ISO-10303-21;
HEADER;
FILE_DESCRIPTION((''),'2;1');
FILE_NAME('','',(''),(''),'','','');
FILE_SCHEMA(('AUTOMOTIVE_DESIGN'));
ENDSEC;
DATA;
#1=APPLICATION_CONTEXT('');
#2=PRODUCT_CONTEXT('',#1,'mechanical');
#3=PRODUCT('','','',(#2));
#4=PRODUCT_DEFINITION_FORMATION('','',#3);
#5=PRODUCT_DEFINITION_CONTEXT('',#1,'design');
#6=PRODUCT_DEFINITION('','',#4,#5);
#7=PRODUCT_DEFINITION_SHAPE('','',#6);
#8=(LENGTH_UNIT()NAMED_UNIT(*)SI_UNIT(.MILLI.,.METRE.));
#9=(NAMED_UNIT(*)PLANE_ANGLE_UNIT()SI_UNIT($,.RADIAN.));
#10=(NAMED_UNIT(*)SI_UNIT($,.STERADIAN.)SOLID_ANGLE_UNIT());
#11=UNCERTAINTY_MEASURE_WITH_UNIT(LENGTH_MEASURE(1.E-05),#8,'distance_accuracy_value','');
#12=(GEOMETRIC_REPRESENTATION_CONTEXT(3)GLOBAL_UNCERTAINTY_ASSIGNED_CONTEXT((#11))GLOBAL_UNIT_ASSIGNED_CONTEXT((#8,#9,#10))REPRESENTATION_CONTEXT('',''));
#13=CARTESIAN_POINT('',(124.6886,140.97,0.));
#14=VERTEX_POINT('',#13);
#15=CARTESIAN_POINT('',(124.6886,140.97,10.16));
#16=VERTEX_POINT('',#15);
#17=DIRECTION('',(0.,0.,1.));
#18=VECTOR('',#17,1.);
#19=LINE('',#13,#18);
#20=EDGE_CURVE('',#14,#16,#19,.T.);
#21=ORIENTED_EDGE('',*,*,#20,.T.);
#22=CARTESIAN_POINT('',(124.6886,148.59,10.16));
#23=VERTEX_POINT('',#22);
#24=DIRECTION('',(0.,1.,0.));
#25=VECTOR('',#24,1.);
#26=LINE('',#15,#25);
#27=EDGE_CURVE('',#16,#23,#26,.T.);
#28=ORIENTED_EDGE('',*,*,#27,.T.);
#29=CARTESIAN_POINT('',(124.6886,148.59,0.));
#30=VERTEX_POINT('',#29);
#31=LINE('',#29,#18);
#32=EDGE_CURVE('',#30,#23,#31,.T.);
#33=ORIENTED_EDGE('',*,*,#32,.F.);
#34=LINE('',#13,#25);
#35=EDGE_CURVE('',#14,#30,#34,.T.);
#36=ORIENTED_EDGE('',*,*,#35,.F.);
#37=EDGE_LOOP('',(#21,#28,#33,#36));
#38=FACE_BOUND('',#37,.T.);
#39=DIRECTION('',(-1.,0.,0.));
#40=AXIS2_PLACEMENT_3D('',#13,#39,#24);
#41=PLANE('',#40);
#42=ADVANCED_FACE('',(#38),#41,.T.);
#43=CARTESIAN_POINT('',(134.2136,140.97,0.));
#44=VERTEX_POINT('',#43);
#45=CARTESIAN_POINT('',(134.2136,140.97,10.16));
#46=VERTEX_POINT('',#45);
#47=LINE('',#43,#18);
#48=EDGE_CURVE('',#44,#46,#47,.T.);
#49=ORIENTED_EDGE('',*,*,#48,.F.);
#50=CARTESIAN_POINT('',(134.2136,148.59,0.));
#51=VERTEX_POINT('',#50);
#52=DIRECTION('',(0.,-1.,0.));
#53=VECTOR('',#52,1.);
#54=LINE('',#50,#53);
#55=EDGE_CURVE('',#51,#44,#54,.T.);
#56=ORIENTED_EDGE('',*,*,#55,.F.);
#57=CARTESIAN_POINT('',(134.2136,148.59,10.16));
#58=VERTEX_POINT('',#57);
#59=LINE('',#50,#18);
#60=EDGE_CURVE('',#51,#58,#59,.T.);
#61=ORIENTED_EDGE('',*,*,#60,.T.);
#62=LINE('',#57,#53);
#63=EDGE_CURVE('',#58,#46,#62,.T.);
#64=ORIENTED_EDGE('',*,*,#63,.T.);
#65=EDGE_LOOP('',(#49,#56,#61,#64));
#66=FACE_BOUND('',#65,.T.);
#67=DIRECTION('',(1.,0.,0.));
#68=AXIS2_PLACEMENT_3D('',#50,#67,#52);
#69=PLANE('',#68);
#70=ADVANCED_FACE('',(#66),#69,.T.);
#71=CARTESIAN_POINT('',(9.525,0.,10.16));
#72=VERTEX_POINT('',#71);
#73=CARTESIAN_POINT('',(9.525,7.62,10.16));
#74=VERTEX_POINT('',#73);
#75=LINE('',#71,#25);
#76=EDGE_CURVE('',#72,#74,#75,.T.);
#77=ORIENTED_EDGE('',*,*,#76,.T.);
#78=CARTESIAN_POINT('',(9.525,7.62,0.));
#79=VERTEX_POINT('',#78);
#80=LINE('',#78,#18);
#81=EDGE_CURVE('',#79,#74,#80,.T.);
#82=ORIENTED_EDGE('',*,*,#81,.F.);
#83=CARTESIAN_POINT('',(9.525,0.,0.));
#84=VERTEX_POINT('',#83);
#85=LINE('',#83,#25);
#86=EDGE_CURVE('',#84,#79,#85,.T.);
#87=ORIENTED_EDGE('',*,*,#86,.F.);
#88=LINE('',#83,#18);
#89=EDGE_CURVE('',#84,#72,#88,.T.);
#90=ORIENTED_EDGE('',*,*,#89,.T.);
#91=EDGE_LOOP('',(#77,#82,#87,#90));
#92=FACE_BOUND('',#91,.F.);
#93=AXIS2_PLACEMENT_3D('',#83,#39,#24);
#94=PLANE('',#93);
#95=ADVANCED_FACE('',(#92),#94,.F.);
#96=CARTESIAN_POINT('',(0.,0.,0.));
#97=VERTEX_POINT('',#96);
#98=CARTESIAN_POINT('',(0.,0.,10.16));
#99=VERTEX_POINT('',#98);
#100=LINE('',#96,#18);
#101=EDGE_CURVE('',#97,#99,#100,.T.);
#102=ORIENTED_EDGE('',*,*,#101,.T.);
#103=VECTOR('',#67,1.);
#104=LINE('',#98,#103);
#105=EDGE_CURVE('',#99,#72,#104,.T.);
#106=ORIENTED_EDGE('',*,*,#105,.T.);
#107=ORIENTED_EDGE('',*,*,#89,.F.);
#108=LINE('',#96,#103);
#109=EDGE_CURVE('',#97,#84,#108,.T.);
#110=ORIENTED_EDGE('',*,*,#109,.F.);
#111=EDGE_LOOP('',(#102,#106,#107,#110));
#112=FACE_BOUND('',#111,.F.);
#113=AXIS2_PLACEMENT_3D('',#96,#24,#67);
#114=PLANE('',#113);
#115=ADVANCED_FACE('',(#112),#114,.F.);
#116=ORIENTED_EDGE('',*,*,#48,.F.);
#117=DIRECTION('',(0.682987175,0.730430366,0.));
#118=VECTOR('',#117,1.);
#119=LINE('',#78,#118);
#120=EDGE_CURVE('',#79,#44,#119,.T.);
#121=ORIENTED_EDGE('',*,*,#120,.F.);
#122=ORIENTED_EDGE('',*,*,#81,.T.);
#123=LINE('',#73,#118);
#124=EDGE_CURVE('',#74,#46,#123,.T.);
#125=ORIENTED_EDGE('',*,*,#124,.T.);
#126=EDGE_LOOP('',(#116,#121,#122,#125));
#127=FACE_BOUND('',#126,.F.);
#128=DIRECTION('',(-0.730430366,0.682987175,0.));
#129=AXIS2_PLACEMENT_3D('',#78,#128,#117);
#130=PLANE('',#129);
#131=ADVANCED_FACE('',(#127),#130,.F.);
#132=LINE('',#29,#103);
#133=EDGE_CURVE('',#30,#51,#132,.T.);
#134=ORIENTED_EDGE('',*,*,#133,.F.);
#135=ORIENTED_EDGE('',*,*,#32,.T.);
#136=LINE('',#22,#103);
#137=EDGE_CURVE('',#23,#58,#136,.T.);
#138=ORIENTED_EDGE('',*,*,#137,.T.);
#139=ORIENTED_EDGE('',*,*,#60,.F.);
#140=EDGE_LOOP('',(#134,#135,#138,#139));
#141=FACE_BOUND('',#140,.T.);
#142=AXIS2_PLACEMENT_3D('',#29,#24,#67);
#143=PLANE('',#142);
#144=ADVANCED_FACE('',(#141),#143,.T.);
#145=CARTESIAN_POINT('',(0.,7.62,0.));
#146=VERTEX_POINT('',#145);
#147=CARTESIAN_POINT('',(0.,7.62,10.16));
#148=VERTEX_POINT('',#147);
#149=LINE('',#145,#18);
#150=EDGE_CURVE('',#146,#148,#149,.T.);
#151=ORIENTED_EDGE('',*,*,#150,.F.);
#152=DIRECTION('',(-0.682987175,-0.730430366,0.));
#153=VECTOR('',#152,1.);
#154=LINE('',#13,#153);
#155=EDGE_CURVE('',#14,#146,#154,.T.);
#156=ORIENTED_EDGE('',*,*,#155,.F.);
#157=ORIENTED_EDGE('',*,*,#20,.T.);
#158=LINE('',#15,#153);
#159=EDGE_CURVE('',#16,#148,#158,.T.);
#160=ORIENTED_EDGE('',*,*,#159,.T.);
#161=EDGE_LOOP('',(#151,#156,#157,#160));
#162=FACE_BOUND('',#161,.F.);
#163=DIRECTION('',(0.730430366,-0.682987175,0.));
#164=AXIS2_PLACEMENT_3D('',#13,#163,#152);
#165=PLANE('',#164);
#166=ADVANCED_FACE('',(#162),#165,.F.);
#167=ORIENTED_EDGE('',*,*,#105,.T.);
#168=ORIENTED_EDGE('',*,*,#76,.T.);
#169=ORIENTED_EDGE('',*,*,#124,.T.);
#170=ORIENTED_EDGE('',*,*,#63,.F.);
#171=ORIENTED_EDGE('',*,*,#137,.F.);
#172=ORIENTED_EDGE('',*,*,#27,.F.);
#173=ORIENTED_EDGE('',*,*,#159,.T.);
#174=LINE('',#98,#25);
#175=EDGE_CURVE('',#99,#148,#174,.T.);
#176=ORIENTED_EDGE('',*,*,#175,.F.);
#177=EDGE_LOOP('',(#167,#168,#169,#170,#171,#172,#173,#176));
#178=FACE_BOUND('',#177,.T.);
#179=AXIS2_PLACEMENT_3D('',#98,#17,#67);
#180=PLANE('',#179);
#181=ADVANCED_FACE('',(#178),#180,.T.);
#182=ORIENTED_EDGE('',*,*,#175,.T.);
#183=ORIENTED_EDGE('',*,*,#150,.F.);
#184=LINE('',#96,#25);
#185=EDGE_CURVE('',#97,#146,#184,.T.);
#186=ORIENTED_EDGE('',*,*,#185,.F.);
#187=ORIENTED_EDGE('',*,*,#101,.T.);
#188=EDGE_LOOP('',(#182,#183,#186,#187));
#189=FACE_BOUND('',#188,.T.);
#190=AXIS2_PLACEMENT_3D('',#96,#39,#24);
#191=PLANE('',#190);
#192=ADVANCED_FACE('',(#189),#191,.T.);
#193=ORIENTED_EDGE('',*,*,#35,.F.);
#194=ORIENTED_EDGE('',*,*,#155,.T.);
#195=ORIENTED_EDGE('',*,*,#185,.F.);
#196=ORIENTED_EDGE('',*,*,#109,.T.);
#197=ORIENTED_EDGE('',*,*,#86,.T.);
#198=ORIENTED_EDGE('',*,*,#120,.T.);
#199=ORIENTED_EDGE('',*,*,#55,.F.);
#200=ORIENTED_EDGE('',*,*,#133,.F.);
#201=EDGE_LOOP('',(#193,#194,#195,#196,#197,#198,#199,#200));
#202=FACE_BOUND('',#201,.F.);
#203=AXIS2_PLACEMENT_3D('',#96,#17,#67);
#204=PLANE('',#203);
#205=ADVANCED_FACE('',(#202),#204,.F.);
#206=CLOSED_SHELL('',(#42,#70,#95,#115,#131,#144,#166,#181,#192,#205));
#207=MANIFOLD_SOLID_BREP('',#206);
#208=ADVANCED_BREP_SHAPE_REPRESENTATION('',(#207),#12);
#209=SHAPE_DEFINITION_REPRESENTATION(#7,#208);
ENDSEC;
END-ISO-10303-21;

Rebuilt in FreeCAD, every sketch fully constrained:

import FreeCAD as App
import Part
import Sketcher
from FreeCAD import Vector
Q = App.Units.Quantity

doc = App.newDocument("Part")
body = doc.addObject("PartDesign::Body", "Body")

sketch1 = body.newObject("Sketcher::SketchObject", "Sketch")
sketch1.AttachmentSupport = (doc.getObject("XY_Plane"), [""])
sketch1.MapMode = "FlatFace"
sketch1.addGeometry([
    Part.LineSegment(Vector(0, 8, 0), Vector(0, 0, 0)),
    Part.LineSegment(Vector(0, 0, 0), Vector(10, 0, 0)),
    Part.LineSegment(Vector(10, 0, 0), Vector(10, 8, 0)),
    Part.LineSegment(Vector(10, 8, 0), Vector(134, 141, 0)),
    Part.LineSegment(Vector(134, 141, 0), Vector(134, 149, 0)),
    Part.LineSegment(Vector(134, 149, 0), Vector(125, 149, 0)),
    Part.LineSegment(Vector(125, 149, 0), Vector(125, 141, 0)),
    Part.LineSegment(Vector(125, 141, 0), Vector(0, 8, 0)),
], False)
sketch1.addConstraint([
    Sketcher.Constraint("Coincident", 0, 2, 1, 1),
    Sketcher.Constraint("Coincident", 1, 2, 2, 1),
    Sketcher.Constraint("Coincident", 2, 2, 3, 1),
    Sketcher.Constraint("Coincident", 3, 2, 4, 1),
    Sketcher.Constraint("Coincident", 4, 2, 5, 1),
    Sketcher.Constraint("Coincident", 5, 2, 6, 1),
    Sketcher.Constraint("Coincident", 6, 2, 7, 1),
    Sketcher.Constraint("Coincident", 7, 2, 0, 1),
    Sketcher.Constraint("Vertical", 0),
    Sketcher.Constraint("Horizontal", 1),
    Sketcher.Constraint("Vertical", 2),
    Sketcher.Constraint("Vertical", 4),
    Sketcher.Constraint("Horizontal", 5),
    Sketcher.Constraint("Vertical", 6),
    Sketcher.Constraint("Coincident", 0, 2, -1, 1),
    Sketcher.Constraint("Parallel", 3, 7),
    Sketcher.Constraint("Horizontal", 3, 2, 6, 2),
    Sketcher.Constraint("Horizontal", 2, 2, 7, 2),
    Sketcher.Constraint("Equal", 2, 4),
    Sketcher.Constraint("DistanceY", 0, 2, 0, 1, Q("0.3 in")),
    Sketcher.Constraint("DistanceX", 1, 1, 1, 2, Q("0.375 in")),
    Sketcher.Constraint("DistanceY", 2, 2, 3, 2, Q("5.25 in")),
    Sketcher.Constraint("DistanceX", 2, 2, 5, 2, Q("4.534 in")),
])
pad1 = body.newObject("PartDesign::Pad", "Pad")
pad1.Profile = sketch1
pad1.Length = Q("0.4 in")

doc.recompute()
